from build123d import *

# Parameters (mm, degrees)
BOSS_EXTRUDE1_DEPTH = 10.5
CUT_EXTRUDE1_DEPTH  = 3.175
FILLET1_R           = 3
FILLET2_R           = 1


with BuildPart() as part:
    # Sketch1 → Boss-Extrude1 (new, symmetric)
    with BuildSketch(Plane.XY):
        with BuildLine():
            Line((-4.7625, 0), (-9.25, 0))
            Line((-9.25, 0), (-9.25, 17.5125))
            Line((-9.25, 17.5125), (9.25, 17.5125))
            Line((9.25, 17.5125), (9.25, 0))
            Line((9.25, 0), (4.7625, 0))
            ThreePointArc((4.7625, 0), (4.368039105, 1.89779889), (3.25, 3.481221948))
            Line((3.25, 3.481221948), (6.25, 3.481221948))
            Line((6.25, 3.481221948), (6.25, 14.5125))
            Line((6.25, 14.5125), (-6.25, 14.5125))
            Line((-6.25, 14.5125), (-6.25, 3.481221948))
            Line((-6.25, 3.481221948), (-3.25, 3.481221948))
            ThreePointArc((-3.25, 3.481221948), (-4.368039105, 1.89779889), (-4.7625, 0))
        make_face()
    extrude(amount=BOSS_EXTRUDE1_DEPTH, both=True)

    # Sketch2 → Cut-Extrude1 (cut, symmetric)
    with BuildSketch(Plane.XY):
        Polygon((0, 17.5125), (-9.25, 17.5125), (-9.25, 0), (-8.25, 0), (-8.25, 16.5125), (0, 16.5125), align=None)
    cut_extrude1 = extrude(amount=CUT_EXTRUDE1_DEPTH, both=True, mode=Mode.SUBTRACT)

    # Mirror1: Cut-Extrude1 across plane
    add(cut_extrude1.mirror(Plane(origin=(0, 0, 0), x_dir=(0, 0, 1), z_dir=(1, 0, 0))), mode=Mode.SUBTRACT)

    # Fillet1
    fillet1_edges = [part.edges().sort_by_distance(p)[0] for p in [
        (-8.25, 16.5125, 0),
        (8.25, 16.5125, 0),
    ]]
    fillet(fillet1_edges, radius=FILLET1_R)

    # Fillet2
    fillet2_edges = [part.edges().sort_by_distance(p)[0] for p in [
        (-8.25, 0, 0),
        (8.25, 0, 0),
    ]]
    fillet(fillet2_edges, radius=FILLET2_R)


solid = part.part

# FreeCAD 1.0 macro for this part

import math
import FreeCAD as App
import Part
import Sketcher
from FreeCAD import Vector
Q = App.Units.Quantity


def edges_at(feature, points):
    """Names of the edges that pass closest to the given points."""
    edges = feature.Shape.Edges
    near = lambda p: min(range(len(edges)), key=lambda i: edges[i].distToShape(Part.Vertex(*p))[0])
    return sorted({f"Edge{near(p) + 1}" for p in points})

doc = App.newDocument("Part")
body = doc.addObject("PartDesign::Body", "Body")

# Sketch on XY plane
sketch1 = doc.addObject("Sketcher::SketchObject", "Sketch")
body.addObject(sketch1)
sketch1.AttachmentSupport = (doc.XY_Plane, [""])
sketch1.MapMode = "FlatFace"
sketch1.addGeometry([
    Part.LineSegment(Vector(-9.2, 0, 0), Vector(-4.8, 0, 0)),  # 0
    Part.ArcOfCircle(Part.Circle(Vector(0, 0, 0), Vector(0, 0, 1), 4.8), math.radians(133), math.radians(180)),  # 1
    Part.LineSegment(Vector(-3.2, 3.5, 0), Vector(-6.2, 3.5, 0)),  # 2
    Part.LineSegment(Vector(-6.2, 3.5, 0), Vector(-6.2, 14.5, 0)),  # 3
    Part.LineSegment(Vector(-6.2, 14.5, 0), Vector(6.2, 14.5, 0)),  # 4
    Part.LineSegment(Vector(6.2, 14.5, 0), Vector(6.2, 3.5, 0)),  # 5
    Part.LineSegment(Vector(6.2, 3.5, 0), Vector(3.2, 3.5, 0)),  # 6
    Part.ArcOfCircle(Part.Circle(Vector(0, 0, 0), Vector(0, 0, 1), 4.8), math.radians(0), math.radians(47)),  # 7
    Part.LineSegment(Vector(4.8, 0, 0), Vector(9.2, 0, 0)),  # 8
    Part.LineSegment(Vector(9.2, 0, 0), Vector(9.2, 17.5, 0)),  # 9
    Part.LineSegment(Vector(9.2, 17.5, 0), Vector(-9.2, 17.5, 0)),  # 10
    Part.LineSegment(Vector(-9.2, 17.5, 0), Vector(-9.2, 0, 0)),  # 11
], False)
sketch1.addConstraint([
    Sketcher.Constraint("Coincident", 0, 2, 1, 2),
    Sketcher.Constraint("Coincident", 1, 1, 2, 1),
    Sketcher.Constraint("Coincident", 2, 2, 3, 1),
    Sketcher.Constraint("Coincident", 3, 2, 4, 1),
    Sketcher.Constraint("Coincident", 4, 2, 5, 1),
    Sketcher.Constraint("Coincident", 5, 2, 6, 1),
    Sketcher.Constraint("Coincident", 6, 2, 7, 2),
    Sketcher.Constraint("Coincident", 7, 1, 8, 1),
    Sketcher.Constraint("Coincident", 8, 2, 9, 1),
    Sketcher.Constraint("Coincident", 9, 2, 10, 1),
    Sketcher.Constraint("Coincident", 10, 2, 11, 1),
    Sketcher.Constraint("Coincident", 11, 2, 0, 1),
    Sketcher.Constraint("Horizontal", 0),
    Sketcher.Constraint("Horizontal", 2),
    Sketcher.Constraint("Vertical", 3),
    Sketcher.Constraint("Horizontal", 4),
    Sketcher.Constraint("Vertical", 5),
    Sketcher.Constraint("Horizontal", 6),
    Sketcher.Constraint("Horizontal", 8),
    Sketcher.Constraint("Vertical", 9),
    Sketcher.Constraint("Horizontal", 10),
    Sketcher.Constraint("Vertical", 11),
    Sketcher.Constraint("Coincident", 1, 3, -1, 1),
    Sketcher.Constraint("Coincident", 7, 3, -1, 1),
    Sketcher.Constraint("Equal", 1, 7),
    Sketcher.Constraint("Symmetric", 8, 2, 11, 2, -1, 1),
    Sketcher.Constraint("Symmetric", 2, 2, 5, 2, -2),
    Sketcher.Constraint("PointOnObject", 0, 2, -1),
    Sketcher.Constraint("DistanceX", 2, 2, 2, 1, Q("3 mm")),
    Sketcher.Constraint("DistanceX", 4, 1, 4, 2, Q("12.5 mm")),
    Sketcher.Constraint("DistanceX", 10, 2, 10, 1, Q("18.5 mm")),
    Sketcher.Constraint("DistanceY", 4, 2, 9, 2, Q("3 mm")),
    Sketcher.Constraint("Radius", 1, Q("4.7625 mm")),
    Sketcher.Constraint("DistanceY", 9, 1, 9, 2, Q("17.5125 mm")),
])
pad1 = doc.addObject("PartDesign::Pad", "Pad")
body.addObject(pad1)
pad1.Profile = sketch1
pad1.Length = 21
pad1.Midplane = True

# Sketch on XY plane
sketch2 = doc.addObject("Sketcher::SketchObject", "Sketch001")
body.addObject(sketch2)
sketch2.AttachmentSupport = (doc.XY_Plane, [""])
sketch2.MapMode = "FlatFace"
sketch2.addGeometry([
    Part.LineSegment(Vector(0, 17.5, 0), Vector(-9.2, 17.5, 0)),  # 0
    Part.LineSegment(Vector(-9.2, 17.5, 0), Vector(-9.2, 0, 0)),  # 1
    Part.LineSegment(Vector(-9.2, 0, 0), Vector(-8.2, 0, 0)),  # 2
    Part.LineSegment(Vector(-8.2, 0, 0), Vector(-8.2, 16.5, 0)),  # 3
    Part.LineSegment(Vector(-8.2, 16.5, 0), Vector(0, 16.5, 0)),  # 4
    Part.LineSegment(Vector(0, 16.5, 0), Vector(0, 17.5, 0)),  # 5
], False)
sketch2.addConstraint([
    Sketcher.Constraint("Coincident", 0, 2, 1, 1),
    Sketcher.Constraint("Coincident", 1, 2, 2, 1),
    Sketcher.Constraint("Coincident", 2, 2, 3, 1),
    Sketcher.Constraint("Coincident", 3, 2, 4, 1),
    Sketcher.Constraint("Coincident", 4, 2, 5, 1),
    Sketcher.Constraint("Coincident", 5, 2, 0, 1),
    Sketcher.Constraint("Horizontal", 0),
    Sketcher.Constraint("Vertical", 1),
    Sketcher.Constraint("Horizontal", 2),
    Sketcher.Constraint("Vertical", 3),
    Sketcher.Constraint("Horizontal", 4),
    Sketcher.Constraint("Vertical", 5),
    Sketcher.Constraint("PointOnObject", 1, 2, -1),
    Sketcher.Constraint("PointOnObject", 4, 2, -2),
    Sketcher.Constraint("Equal", 2, 5),
    Sketcher.Constraint("DistanceX", 2, 1, 2, 2, Q("1 mm")),
    Sketcher.Constraint("DistanceX", 0, 2, 0, 1, Q("9.25 mm")),
    Sketcher.Constraint("DistanceY", 1, 2, 1, 1, Q("17.5125 mm")),
])
pocket1 = doc.addObject("PartDesign::Pocket", "Pocket")
body.addObject(pocket1)
pocket1.Profile = sketch2
pocket1.Length = 6.35
pocket1.Midplane = True
doc.recompute()

mirrored = doc.addObject("PartDesign::Mirrored", "Mirrored")
body.addObject(mirrored)
mirrored.Originals = [pocket1]
mirrored.MirrorPlane = (doc.YZ_Plane, [""])
body.Tip = mirrored
doc.recompute()

fillet = doc.addObject("PartDesign::Fillet", "Fillet")
body.addObject(fillet)
fillet.Base = (mirrored, edges_at(mirrored, [(-8.25, 16.512, 0), (8.25, 16.512, 0)]))
fillet.Radius = 3
doc.recompute()

fillet2 = doc.addObject("PartDesign::Fillet", "Fillet001")
body.addObject(fillet2)
fillet2.Base = (fillet, edges_at(fillet, [(-8.25, 0, 0), (8.25, 0, 0)]))
fillet2.Radius = 1

doc.recompute()
